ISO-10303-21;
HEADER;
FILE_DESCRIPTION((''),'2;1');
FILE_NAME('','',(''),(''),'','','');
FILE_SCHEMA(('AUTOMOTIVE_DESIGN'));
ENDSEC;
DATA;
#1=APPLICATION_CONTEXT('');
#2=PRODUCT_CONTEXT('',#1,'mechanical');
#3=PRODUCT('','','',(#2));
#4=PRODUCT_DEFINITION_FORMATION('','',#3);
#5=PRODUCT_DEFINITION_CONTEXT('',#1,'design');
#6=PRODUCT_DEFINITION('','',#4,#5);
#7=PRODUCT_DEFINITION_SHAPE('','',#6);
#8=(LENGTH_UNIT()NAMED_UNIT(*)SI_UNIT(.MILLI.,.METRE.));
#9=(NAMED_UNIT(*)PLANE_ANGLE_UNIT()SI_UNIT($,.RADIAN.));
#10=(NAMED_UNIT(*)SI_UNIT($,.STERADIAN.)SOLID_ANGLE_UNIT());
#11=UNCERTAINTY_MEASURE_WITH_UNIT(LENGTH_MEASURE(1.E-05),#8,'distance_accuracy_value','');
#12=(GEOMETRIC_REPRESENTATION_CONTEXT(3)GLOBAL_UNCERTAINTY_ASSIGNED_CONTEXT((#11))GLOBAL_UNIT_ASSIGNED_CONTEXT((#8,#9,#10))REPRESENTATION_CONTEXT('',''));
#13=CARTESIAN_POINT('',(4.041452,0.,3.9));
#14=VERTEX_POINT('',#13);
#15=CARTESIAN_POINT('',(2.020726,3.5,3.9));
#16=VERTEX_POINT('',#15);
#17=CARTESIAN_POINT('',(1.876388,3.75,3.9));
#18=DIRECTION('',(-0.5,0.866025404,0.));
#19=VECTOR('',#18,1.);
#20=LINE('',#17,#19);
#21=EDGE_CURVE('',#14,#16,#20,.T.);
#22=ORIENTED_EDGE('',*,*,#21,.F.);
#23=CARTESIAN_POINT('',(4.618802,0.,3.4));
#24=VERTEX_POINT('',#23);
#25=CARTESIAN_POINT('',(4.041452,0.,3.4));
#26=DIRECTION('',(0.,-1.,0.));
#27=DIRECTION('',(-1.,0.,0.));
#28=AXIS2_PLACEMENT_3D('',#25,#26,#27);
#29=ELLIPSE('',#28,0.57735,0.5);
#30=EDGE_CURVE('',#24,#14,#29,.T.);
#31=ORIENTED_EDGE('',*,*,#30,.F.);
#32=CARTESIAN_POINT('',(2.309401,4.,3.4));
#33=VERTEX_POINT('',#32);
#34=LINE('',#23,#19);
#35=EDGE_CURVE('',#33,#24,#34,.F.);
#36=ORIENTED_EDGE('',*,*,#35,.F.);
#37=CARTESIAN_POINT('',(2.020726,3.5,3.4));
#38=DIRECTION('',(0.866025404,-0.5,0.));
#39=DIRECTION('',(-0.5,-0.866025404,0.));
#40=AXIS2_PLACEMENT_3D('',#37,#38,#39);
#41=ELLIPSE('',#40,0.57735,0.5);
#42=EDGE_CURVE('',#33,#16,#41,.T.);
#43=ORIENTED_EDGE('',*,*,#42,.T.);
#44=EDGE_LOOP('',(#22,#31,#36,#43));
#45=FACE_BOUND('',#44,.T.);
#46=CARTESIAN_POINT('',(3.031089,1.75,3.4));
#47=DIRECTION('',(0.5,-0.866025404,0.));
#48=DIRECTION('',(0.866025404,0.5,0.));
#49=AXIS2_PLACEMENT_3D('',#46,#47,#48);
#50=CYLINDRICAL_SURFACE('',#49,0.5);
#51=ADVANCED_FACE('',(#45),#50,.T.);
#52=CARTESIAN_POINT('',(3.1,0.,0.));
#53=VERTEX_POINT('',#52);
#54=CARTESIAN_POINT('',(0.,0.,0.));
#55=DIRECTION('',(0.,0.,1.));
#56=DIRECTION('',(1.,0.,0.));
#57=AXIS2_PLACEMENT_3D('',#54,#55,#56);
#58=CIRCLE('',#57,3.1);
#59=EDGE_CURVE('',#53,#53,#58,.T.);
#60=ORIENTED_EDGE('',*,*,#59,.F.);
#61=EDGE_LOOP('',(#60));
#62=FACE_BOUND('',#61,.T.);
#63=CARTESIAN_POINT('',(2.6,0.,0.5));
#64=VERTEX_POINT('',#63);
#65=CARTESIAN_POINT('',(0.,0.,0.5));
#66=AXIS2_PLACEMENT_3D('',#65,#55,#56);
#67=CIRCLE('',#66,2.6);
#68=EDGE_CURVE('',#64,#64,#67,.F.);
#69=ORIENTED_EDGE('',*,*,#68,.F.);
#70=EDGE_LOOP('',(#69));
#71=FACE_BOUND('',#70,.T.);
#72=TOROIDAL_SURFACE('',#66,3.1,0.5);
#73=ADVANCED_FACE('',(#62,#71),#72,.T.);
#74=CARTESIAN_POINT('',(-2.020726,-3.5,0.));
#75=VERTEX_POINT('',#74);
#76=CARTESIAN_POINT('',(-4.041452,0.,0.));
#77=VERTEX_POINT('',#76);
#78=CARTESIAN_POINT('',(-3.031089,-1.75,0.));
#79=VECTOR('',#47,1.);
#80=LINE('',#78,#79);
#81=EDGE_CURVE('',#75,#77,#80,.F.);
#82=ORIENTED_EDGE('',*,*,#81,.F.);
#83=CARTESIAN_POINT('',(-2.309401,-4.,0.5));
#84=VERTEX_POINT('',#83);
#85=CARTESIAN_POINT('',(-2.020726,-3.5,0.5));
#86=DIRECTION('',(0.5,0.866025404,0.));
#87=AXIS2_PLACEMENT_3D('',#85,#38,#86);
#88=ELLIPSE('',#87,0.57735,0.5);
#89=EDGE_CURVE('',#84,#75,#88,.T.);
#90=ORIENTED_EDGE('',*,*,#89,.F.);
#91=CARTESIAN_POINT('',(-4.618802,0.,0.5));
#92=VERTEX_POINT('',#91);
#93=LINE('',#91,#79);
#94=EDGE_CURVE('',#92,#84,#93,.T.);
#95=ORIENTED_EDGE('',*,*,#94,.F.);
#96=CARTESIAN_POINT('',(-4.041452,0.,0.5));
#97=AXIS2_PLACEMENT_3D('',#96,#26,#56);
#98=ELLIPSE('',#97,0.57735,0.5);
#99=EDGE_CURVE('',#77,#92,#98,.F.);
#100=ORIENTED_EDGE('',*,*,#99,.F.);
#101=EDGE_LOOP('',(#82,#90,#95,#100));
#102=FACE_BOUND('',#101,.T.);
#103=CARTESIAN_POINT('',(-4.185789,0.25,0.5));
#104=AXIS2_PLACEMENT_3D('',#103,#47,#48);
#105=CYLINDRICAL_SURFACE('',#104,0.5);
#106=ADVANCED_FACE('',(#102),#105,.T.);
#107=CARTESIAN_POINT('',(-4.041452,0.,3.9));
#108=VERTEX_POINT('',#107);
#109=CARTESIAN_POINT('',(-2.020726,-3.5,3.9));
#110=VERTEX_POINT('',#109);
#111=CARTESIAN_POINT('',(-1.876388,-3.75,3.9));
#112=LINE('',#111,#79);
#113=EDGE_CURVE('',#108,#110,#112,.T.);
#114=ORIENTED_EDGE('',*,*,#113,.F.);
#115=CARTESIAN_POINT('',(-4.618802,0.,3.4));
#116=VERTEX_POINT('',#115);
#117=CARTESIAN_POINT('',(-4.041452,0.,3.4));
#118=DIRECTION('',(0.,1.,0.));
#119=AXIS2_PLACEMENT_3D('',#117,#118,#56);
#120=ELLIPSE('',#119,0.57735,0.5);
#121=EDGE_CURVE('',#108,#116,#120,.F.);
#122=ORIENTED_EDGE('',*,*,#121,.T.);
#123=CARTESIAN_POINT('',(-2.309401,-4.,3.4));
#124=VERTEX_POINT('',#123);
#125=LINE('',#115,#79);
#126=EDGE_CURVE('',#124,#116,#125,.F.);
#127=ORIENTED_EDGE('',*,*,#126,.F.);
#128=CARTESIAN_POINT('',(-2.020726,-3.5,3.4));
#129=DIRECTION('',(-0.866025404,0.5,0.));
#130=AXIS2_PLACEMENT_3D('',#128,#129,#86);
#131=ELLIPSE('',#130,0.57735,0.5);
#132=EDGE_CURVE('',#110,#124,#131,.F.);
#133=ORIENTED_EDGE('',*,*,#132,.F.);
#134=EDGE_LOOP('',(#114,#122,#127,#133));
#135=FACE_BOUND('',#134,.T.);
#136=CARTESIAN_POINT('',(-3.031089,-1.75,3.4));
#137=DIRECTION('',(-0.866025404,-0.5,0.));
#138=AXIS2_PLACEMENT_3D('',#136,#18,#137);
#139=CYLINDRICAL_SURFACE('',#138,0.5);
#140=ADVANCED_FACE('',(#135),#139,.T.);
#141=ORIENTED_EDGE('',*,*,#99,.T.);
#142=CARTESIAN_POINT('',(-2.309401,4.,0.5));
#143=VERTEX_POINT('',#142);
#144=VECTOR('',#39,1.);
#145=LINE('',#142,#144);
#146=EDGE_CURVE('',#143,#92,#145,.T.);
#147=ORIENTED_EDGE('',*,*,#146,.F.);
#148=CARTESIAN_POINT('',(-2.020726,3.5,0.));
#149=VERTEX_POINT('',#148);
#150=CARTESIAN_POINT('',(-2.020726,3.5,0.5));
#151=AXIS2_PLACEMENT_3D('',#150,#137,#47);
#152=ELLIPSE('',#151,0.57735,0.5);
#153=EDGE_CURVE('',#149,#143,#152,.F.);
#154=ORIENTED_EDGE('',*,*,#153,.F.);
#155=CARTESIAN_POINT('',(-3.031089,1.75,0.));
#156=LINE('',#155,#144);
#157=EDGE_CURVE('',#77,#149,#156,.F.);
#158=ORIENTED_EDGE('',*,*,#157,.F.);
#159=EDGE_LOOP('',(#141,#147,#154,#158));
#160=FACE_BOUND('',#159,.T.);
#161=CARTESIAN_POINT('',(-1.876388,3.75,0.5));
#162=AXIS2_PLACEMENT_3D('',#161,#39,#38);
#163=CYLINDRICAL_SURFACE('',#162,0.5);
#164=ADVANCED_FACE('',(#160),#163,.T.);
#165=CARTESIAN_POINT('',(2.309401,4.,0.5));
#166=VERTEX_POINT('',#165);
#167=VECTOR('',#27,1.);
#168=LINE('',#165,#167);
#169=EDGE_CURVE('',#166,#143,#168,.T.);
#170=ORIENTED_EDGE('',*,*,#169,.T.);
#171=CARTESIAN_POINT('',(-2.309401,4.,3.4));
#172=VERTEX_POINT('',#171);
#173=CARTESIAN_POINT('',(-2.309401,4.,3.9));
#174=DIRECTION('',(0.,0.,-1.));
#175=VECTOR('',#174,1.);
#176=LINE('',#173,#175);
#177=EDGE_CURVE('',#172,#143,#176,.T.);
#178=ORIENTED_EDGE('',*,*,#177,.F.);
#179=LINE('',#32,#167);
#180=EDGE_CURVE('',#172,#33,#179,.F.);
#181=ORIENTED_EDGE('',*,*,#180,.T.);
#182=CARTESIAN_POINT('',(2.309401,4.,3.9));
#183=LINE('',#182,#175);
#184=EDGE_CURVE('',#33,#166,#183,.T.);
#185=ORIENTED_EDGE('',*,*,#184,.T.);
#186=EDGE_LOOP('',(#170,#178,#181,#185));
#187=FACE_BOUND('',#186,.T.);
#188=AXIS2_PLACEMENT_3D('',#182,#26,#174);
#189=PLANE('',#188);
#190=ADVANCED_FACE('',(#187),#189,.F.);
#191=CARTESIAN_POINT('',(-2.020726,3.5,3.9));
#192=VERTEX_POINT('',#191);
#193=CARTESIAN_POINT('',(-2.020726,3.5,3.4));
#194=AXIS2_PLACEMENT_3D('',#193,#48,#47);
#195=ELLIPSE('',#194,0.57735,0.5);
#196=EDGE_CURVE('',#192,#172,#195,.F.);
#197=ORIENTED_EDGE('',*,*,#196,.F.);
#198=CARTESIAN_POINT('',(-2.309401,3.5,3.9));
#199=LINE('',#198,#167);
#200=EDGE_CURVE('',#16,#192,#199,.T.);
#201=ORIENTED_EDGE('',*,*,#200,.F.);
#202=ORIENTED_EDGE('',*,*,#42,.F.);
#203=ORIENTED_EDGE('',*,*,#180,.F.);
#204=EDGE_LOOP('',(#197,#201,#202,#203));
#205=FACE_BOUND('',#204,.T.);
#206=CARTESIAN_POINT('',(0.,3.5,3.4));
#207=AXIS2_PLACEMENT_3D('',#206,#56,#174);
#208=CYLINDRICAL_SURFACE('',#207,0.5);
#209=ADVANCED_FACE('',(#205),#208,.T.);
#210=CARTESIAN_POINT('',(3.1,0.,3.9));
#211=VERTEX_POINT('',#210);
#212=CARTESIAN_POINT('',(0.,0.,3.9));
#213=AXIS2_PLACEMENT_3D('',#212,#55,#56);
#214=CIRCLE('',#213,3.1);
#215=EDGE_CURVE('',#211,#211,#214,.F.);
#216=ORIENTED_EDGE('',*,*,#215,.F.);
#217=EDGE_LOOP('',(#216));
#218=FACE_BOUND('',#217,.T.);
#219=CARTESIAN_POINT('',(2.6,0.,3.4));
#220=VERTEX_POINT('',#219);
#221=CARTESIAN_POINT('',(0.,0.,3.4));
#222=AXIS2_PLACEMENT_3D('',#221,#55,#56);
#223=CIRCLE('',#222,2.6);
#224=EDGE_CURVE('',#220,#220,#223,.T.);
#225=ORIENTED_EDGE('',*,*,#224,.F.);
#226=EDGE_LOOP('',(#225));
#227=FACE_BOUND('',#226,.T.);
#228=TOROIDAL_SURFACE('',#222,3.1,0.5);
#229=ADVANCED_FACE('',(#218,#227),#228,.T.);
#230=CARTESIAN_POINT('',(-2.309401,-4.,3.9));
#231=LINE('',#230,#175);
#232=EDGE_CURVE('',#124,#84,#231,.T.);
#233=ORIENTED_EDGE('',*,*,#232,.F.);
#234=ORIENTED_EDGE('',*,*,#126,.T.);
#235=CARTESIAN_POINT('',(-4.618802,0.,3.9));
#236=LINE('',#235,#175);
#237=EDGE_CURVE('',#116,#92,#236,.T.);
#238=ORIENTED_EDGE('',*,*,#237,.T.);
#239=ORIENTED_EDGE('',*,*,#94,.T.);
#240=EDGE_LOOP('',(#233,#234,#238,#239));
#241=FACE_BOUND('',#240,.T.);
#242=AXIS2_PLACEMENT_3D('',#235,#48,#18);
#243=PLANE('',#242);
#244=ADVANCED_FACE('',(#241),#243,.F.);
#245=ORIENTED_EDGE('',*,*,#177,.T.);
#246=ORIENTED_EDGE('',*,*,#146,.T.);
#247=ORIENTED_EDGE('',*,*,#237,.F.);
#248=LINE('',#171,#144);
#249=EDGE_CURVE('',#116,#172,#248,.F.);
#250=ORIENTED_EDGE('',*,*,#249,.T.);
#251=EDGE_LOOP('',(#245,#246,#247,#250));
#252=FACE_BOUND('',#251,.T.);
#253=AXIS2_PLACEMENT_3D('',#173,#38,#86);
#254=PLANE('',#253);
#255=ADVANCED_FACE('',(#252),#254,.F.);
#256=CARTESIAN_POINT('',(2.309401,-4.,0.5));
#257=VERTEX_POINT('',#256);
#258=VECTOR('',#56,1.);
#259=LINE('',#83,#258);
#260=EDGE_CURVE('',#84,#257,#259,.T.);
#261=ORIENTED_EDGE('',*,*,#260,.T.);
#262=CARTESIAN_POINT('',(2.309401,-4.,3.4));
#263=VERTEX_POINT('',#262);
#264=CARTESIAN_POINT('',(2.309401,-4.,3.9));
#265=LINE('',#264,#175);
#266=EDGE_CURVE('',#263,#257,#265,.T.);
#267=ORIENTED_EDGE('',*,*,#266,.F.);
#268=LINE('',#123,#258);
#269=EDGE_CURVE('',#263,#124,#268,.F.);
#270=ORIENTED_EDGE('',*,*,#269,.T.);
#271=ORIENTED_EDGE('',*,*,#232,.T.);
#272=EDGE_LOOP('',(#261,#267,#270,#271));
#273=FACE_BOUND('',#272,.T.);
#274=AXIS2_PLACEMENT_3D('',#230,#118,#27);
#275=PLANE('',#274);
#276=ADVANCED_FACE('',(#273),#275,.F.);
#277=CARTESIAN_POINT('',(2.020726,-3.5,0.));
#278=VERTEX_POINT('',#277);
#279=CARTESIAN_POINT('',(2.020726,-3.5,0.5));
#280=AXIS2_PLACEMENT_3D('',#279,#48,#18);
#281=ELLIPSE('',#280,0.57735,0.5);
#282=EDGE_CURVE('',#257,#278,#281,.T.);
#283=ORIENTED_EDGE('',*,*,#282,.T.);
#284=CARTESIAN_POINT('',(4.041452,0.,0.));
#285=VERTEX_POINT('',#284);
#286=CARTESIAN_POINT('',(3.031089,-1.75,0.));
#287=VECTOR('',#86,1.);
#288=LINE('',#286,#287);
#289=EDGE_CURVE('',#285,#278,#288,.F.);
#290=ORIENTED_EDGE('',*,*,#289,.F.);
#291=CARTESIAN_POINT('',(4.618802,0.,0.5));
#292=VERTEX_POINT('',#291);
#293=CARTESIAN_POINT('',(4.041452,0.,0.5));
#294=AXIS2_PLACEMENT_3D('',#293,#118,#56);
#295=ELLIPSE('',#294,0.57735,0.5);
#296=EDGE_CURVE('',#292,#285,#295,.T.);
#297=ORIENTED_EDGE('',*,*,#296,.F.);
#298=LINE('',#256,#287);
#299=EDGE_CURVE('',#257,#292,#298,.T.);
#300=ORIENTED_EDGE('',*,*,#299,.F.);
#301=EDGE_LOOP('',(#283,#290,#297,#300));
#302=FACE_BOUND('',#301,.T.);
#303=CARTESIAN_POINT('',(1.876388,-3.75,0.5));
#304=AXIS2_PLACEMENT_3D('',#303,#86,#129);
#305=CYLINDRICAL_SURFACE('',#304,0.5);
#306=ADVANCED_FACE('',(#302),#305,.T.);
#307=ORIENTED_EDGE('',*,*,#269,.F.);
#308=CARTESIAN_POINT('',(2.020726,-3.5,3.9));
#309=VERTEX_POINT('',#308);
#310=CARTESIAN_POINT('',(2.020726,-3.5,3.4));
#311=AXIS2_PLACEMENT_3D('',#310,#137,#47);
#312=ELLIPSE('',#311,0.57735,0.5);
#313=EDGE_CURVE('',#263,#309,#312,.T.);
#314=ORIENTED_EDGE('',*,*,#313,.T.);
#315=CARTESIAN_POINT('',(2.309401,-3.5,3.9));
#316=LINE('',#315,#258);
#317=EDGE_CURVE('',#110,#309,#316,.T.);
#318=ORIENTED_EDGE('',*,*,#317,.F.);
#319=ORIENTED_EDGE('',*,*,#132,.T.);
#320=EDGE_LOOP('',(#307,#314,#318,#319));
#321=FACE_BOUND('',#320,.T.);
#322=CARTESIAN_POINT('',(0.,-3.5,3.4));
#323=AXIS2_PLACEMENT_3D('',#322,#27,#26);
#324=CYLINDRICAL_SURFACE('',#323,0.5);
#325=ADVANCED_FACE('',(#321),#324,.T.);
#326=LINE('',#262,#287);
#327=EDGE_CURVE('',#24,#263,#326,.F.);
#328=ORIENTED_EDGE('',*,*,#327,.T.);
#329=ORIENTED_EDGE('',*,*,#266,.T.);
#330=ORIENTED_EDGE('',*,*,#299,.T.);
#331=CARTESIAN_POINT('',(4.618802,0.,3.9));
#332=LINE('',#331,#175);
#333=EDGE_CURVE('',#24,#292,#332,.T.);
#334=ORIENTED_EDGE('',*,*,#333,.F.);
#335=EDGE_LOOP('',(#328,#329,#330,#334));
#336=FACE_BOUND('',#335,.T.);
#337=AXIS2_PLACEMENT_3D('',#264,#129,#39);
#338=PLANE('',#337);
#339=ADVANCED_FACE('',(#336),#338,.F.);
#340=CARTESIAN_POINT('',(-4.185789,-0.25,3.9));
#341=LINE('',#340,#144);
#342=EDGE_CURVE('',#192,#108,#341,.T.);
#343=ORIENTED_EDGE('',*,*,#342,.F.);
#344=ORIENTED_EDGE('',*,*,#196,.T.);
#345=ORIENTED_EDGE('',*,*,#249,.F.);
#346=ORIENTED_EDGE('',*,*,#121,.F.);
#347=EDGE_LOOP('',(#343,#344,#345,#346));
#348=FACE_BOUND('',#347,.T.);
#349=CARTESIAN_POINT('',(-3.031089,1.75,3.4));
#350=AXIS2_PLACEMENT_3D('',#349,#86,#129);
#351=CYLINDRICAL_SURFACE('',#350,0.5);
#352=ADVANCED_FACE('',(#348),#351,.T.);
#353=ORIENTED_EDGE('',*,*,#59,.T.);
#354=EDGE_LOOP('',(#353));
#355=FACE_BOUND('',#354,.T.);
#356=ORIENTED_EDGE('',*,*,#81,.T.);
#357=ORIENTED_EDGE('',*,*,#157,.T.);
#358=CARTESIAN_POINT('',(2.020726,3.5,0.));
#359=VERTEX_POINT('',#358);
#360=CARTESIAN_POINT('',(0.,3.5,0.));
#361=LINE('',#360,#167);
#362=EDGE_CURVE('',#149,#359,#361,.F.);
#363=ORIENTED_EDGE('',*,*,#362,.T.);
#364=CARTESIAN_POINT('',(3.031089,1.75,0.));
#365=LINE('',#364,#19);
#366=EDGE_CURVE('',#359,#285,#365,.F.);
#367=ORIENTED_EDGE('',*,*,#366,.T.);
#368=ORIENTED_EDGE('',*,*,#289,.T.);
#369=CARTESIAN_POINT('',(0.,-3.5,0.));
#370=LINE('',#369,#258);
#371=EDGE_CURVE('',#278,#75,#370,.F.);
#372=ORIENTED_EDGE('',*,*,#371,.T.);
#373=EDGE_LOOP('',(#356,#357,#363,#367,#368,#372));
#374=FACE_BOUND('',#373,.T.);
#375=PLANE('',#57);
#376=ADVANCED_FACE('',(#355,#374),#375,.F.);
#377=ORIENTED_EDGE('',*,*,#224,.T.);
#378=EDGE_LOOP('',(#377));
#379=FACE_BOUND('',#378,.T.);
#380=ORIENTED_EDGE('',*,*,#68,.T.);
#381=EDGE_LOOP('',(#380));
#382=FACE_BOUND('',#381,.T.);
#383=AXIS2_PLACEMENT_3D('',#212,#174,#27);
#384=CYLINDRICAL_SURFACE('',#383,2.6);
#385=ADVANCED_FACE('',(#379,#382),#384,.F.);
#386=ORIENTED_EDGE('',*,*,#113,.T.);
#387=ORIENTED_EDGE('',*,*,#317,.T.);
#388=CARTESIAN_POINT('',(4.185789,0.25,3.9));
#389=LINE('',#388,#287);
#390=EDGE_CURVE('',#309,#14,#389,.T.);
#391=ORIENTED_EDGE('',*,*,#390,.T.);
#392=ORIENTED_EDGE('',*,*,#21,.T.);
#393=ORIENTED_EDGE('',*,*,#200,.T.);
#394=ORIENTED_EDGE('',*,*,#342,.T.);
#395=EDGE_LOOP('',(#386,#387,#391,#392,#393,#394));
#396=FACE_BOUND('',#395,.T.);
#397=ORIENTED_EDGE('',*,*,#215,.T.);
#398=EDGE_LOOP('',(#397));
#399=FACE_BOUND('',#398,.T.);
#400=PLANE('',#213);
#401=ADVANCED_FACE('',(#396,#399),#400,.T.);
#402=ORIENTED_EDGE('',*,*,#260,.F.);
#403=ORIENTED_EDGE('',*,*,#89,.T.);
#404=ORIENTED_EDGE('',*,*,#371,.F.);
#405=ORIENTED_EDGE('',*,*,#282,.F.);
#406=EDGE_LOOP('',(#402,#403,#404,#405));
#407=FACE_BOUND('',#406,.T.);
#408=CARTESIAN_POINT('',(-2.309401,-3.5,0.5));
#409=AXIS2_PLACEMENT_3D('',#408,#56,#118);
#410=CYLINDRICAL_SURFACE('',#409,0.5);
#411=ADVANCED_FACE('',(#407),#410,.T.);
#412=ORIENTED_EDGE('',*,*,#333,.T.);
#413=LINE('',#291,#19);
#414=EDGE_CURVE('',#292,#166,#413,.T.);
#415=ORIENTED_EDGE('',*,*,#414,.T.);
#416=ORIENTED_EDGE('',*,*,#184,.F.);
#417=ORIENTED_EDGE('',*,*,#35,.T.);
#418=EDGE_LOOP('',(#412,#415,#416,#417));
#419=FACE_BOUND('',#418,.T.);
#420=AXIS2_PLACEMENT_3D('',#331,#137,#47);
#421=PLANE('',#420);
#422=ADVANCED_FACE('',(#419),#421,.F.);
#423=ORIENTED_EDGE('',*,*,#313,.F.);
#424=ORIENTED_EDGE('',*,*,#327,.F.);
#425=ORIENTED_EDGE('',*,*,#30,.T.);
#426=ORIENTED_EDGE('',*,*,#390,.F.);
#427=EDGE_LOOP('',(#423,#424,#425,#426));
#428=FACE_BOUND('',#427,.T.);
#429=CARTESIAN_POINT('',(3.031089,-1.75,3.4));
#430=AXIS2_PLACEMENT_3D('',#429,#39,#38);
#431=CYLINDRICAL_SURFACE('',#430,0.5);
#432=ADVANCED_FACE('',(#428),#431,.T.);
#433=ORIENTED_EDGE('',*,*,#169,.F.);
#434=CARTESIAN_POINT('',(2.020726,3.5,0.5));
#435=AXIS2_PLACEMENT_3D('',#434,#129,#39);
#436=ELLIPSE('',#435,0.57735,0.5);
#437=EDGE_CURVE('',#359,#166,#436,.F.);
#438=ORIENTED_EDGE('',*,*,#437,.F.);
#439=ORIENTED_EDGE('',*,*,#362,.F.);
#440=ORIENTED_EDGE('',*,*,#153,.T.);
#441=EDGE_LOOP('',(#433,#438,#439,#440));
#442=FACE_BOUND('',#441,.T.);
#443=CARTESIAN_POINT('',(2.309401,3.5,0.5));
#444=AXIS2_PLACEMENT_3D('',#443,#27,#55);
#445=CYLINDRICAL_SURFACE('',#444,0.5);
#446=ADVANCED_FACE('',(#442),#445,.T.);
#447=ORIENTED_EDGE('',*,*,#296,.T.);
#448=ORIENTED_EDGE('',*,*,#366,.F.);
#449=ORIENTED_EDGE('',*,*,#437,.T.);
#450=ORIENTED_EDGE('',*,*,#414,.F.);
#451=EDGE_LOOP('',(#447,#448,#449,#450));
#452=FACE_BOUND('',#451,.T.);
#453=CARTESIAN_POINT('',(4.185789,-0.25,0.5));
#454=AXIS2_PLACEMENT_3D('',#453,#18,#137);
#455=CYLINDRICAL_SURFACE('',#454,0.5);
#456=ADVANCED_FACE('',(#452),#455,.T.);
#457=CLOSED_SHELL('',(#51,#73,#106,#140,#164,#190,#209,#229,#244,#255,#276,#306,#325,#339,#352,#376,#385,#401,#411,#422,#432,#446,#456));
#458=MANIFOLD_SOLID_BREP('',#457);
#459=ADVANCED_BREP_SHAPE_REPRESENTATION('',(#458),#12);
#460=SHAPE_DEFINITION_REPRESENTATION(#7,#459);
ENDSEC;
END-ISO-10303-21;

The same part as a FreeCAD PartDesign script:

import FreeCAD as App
import Part
import Sketcher
Q = App.Units.Quantity


def edges_at(feature, points):
    """Names of the edges that pass closest to the given points."""
    edges = feature.Shape.Edges
    near = lambda p: min(range(len(edges)), key=lambda i: edges[i].distToShape(Part.Vertex(*p))[0])
    return sorted({f"Edge{near(p) + 1}" for p in points})

doc = App.newDocument("Part")
params = doc.addObject("Spreadsheet::Sheet", "Params")
for row, (alias, value) in enumerate([
    ("sketch1_diameter", "5.2 mm"),
    ("pad1_length", "3.9 mm"),
    ("fillet_radius", "0.5 mm"),
], start=1):
    params.set(f"A{row}", alias)
    params.set(f"B{row}", "=" + value)
    params.setAlias(f"B{row}", alias)

body = doc.addObject("PartDesign::Body", "Body")

# Sketch on XY plane
sketch1 = doc.addObject("Sketcher::SketchObject", "Sketch")
body.addObject(sketch1)
sketch1.AttachmentSupport = (doc.XY_Plane, [""])
sketch1.MapMode = "FlatFace"
sketch1.addGeometry([
    Part.LineSegment(App.Vector(4.6, 0, 0), App.Vector(2.3, 4, 0)),  # 0
    Part.LineSegment(App.Vector(2.3, 4, 0), App.Vector(-2.3, 4, 0)),  # 1
    Part.LineSegment(App.Vector(-2.3, 4, 0), App.Vector(-4.6, 0, 0)),  # 2
    Part.LineSegment(App.Vector(-4.6, 0, 0), App.Vector(-2.3, -4, 0)),  # 3
    Part.LineSegment(App.Vector(-2.3, -4, 0), App.Vector(2.3, -4, 0)),  # 4
    Part.LineSegment(App.Vector(2.3, -4, 0), App.Vector(4.6, 0, 0)),  # 5
    Part.Circle(App.Vector(0, 0, 0), App.Vector(0, 0, 1), 2.6),  # 6
], False)
sketch1.addConstraint([
    Sketcher.Constraint("Coincident", 0, 2, 1, 1),
    Sketcher.Constraint("Coincident", 1, 2, 2, 1),
    Sketcher.Constraint("Coincident", 2, 2, 3, 1),
    Sketcher.Constraint("Coincident", 3, 2, 4, 1),
    Sketcher.Constraint("Coincident", 4, 2, 5, 1),
    Sketcher.Constraint("Coincident", 5, 2, 0, 1),
    Sketcher.Constraint("Horizontal", 1),
    Sketcher.Constraint("Horizontal", 4),
    Sketcher.Constraint("Coincident", 6, 3, -1, 1),
    Sketcher.Constraint("Symmetric", 0, 2, 3, 2, -1, 1),
    Sketcher.Constraint("Symmetric", 2, 2, 5, 2, -1, 1),
    Sketcher.Constraint("PointOnObject", 2, 2, -1),
    Sketcher.Constraint("Parallel", 2, 5),
    Sketcher.Constraint("Vertical", 1, 2, 3, 2),
    Sketcher.Constraint("Diameter", 6, 5.2),
    Sketcher.Constraint("Angle", 0, Q("120 deg")),
    Sketcher.Constraint("DistanceY", -1, 1, 0, 2, 4.0),
    Sketcher.Constraint("DistanceX", -1, 1, 0, 2, 2.309401),
])
sketch1.setExpression("Constraints[14]", "Params.sketch1_diameter")
pad1 = doc.addObject("PartDesign::Pad", "Pad")
body.addObject(pad1)
pad1.Profile = sketch1
pad1.setExpression("Length", "Params.pad1_length")
doc.recompute()

fillet = doc.addObject("PartDesign::Fillet", "Fillet")
body.addObject(fillet)
fillet.Base = (pad1, edges_at(pad1, [
    (0, 4, 3.9),
    (-3.464, 2, 3.9),
    (-2.6, 0, 0),
    (-2.6, 0, 3.9),
    (-3.464, -2, 3.9),
    (0, -4, 3.9),
    (3.464, -2, 3.9),
    (0, -4, 0),
    (-3.464, -2, 0),
    (-3.464, 2, 0),
    (0, 4, 0),
    (3.464, 2, 0),
    (3.464, -2, 0),
    (3.464, 2, 3.9),
]))
fillet.setExpression("Radius", "Params.fillet_radius")

doc.recompute()
